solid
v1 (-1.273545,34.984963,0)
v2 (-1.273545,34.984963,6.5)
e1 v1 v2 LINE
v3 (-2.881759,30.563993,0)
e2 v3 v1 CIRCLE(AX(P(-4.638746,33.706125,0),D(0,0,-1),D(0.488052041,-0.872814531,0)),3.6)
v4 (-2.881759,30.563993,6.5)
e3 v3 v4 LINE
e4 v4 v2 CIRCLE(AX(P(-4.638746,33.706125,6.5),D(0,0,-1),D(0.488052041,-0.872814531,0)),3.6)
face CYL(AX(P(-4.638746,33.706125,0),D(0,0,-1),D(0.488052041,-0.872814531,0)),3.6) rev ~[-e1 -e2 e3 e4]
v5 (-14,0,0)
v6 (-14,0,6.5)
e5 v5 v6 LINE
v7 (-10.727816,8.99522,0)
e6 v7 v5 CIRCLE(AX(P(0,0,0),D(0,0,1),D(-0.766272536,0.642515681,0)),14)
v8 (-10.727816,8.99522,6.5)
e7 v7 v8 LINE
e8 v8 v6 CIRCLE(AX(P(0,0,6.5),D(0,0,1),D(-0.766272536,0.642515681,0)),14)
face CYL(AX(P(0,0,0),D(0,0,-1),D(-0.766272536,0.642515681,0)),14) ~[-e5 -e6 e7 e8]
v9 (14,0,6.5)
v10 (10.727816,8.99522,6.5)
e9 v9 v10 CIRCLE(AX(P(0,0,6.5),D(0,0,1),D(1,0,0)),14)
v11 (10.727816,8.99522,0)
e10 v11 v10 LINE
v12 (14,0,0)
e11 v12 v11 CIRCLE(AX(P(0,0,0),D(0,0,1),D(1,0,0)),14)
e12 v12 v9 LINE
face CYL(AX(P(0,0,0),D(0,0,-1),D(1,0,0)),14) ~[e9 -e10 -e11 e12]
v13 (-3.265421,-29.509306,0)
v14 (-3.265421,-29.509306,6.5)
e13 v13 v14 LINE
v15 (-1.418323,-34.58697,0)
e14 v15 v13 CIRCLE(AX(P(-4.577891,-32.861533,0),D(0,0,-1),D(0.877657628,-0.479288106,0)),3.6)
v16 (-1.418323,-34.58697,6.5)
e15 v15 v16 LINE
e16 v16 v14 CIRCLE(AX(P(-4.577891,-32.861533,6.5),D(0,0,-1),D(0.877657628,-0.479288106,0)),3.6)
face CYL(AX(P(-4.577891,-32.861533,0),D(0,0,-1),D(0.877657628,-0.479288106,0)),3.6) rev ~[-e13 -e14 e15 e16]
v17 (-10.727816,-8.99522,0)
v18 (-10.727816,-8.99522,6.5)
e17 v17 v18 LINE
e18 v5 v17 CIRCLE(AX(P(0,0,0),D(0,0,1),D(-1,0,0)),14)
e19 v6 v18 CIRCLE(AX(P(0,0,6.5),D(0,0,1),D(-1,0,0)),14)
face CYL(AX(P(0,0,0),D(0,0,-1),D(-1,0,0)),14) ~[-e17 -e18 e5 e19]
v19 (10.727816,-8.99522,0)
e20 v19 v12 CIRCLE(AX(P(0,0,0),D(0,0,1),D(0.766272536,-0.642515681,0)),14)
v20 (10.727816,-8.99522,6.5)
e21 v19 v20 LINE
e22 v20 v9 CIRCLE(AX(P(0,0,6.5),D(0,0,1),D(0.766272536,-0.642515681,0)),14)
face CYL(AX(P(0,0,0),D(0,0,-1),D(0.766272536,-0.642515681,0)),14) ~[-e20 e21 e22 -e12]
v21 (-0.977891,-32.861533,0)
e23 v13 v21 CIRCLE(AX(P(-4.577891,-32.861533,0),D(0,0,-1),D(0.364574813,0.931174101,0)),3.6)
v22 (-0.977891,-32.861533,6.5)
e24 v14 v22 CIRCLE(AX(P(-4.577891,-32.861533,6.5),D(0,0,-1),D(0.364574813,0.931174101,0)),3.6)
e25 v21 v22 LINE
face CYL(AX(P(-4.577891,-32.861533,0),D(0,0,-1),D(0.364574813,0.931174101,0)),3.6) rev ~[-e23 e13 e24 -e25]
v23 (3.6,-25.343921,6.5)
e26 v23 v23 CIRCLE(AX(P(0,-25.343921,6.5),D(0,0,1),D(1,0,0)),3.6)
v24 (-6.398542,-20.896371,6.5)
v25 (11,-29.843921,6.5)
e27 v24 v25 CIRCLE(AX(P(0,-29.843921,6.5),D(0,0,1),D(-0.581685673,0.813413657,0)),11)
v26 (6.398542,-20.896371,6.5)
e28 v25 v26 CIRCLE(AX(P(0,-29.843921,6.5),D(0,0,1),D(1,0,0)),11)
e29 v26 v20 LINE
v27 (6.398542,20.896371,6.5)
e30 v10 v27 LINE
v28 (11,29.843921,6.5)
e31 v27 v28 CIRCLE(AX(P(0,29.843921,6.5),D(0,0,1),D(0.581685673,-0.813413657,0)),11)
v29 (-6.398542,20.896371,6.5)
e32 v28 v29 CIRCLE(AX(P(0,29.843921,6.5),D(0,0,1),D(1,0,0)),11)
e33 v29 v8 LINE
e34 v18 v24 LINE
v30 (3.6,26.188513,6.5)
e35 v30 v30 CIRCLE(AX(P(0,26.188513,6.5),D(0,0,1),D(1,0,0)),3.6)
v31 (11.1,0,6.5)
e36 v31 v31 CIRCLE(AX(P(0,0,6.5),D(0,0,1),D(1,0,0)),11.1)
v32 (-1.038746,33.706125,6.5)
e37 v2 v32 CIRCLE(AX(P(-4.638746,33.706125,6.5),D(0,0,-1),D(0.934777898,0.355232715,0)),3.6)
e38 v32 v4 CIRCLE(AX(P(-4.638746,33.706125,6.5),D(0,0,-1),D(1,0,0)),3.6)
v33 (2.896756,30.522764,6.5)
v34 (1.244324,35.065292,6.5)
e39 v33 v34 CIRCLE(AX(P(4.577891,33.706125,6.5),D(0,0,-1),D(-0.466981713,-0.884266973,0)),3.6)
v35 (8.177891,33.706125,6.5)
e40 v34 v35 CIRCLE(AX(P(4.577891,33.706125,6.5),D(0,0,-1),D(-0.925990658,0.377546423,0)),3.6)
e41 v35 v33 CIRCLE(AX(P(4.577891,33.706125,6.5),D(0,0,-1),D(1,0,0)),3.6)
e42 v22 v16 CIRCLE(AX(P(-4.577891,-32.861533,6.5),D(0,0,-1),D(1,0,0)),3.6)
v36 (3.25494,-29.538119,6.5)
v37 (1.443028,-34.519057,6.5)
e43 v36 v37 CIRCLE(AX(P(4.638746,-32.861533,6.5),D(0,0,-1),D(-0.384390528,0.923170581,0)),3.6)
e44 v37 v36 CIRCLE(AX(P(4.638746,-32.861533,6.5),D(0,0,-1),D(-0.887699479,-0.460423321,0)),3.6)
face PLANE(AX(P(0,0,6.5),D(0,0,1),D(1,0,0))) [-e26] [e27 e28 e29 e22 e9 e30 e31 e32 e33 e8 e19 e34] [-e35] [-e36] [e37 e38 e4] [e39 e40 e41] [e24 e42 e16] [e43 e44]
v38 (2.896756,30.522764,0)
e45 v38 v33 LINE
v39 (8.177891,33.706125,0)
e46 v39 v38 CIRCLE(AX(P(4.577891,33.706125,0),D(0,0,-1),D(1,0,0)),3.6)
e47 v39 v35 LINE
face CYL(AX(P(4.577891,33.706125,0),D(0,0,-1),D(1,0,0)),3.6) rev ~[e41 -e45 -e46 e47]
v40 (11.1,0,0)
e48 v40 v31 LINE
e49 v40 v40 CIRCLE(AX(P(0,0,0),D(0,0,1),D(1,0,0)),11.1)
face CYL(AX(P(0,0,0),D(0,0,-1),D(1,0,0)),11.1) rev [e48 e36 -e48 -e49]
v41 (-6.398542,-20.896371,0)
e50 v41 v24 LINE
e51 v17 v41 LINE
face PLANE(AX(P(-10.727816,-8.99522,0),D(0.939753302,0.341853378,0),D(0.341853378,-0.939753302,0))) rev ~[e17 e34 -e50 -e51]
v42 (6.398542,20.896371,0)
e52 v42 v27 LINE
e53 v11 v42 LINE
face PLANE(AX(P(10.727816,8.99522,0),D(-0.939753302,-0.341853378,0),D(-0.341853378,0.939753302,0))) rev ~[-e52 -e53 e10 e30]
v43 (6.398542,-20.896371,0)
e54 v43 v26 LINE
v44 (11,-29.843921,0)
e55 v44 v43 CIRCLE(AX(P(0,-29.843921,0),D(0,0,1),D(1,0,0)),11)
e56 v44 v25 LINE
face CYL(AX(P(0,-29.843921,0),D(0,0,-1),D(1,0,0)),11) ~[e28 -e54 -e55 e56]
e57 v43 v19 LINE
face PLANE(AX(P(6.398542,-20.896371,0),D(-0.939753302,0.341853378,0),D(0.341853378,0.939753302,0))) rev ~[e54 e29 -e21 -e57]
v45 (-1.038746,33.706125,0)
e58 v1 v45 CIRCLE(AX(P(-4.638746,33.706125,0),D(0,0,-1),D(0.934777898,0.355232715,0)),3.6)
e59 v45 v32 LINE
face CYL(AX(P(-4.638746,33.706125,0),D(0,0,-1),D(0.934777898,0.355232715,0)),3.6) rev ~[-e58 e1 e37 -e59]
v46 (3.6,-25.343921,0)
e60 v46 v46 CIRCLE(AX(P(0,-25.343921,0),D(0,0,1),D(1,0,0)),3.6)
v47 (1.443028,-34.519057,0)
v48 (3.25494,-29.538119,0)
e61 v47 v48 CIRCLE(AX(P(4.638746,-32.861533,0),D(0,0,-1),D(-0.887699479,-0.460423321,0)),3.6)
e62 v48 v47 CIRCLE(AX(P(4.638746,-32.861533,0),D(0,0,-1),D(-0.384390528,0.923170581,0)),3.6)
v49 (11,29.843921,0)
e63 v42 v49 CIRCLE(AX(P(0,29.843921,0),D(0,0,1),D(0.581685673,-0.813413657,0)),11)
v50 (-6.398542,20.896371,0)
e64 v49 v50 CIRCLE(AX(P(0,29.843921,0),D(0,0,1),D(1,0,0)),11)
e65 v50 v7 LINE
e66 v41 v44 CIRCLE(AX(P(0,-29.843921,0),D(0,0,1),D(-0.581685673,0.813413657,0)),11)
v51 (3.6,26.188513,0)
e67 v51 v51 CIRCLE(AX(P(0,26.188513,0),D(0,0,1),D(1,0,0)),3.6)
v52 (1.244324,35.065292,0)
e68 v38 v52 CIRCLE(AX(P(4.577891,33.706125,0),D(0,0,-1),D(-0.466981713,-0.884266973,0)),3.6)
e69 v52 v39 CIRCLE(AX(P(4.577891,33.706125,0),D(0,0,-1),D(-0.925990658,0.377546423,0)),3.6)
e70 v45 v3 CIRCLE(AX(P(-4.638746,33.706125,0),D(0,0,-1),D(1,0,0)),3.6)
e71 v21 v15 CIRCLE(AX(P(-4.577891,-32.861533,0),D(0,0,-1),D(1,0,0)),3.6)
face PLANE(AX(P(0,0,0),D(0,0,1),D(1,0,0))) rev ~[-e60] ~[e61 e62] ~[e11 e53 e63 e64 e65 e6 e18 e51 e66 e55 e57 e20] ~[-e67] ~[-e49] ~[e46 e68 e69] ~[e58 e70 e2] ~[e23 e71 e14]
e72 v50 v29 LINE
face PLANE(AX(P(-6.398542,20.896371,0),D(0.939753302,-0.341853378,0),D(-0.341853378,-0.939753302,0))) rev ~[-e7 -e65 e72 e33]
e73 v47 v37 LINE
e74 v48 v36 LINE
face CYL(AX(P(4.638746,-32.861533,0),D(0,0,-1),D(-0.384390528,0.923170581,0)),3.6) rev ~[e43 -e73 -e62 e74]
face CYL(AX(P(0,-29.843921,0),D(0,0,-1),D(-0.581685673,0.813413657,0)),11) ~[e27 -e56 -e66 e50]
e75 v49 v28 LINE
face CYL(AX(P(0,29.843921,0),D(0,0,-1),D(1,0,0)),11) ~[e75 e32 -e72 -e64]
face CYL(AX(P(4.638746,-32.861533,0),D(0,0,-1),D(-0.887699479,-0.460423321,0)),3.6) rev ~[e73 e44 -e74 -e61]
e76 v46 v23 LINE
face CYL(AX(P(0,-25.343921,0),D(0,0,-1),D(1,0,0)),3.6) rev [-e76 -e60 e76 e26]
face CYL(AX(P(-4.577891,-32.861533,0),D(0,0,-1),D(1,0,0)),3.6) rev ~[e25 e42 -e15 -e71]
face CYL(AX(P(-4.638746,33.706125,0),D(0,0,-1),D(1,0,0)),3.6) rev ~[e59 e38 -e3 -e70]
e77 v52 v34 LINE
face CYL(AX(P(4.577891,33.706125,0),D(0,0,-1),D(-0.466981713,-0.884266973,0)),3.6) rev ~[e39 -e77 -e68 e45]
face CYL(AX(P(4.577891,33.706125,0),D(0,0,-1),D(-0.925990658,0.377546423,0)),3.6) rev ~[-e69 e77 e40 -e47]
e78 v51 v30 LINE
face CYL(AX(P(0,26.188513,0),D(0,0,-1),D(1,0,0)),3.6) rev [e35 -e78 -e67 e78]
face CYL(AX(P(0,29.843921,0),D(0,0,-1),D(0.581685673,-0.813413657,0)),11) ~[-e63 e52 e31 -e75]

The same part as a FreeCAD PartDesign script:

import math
import FreeCAD as App
import Part
import Sketcher
Q = App.Units.Quantity

doc = App.newDocument("Part")
params = doc.addObject("Spreadsheet::Sheet", "Params")
for row, (alias, value) in enumerate([
    ("sketch1_radius", "14 mm"),
    ("sketch1_radius2", "11 mm"),
    ("sketch1_diameter", "22.2 mm"),
    ("sketch1_diameter2", "7.2 mm"),
    ("pad1_length", "6.5 mm"),
], start=1):
    params.set(f"A{row}", alias)
    params.set(f"B{row}", "=" + value)
    params.setAlias(f"B{row}", alias)

body = doc.addObject("PartDesign::Body", "Body")

# Sketch on XY plane
sketch1 = body.newObject("Sketcher::SketchObject", "Sketch")
sketch1.AttachmentSupport = (doc.getObject("XY_Plane"), [""])
sketch1.MapMode = "FlatFace"
sketch1.addGeometry([
    Part.ArcOfCircle(Part.Circle(App.Vector(0, 0, 0), App.Vector(0, 0, 1), 14), math.radians(140), math.radians(180)),  # 0
    Part.ArcOfCircle(Part.Circle(App.Vector(0, 0, 0), App.Vector(0, 0, 1), 14), math.radians(180), math.radians(220)),  # 1
    Part.LineSegment(App.Vector(-10.7, -9, 0), App.Vector(-6.4, -20.9, 0)),  # 2
    Part.ArcOfCircle(Part.Circle(App.Vector(0, -29.8, 0), App.Vector(0, 0, 1), 11), math.radians(126), math.radians(360)),  # 3
    Part.ArcOfCircle(Part.Circle(App.Vector(0, -29.8, 0), App.Vector(0, 0, 1), 11), math.radians(0), math.radians(54)),  # 4
    Part.LineSegment(App.Vector(6.4, -20.9, 0), App.Vector(10.7, -9, 0)),  # 5
    Part.ArcOfCircle(Part.Circle(App.Vector(0, 0, 0), App.Vector(0, 0, 1), 14), math.radians(-40), math.radians(0)),  # 6
    Part.ArcOfCircle(Part.Circle(App.Vector(0, 0, 0), App.Vector(0, 0, 1), 14), math.radians(0), math.radians(40)),  # 7
    Part.LineSegment(App.Vector(10.7, 9, 0), App.Vector(6.4, 20.9, 0)),  # 8
    Part.ArcOfCircle(Part.Circle(App.Vector(0, 29.8, 0), App.Vector(0, 0, 1), 11), math.radians(-54), math.radians(0)),  # 9
    Part.ArcOfCircle(Part.Circle(App.Vector(0, 29.8, 0), App.Vector(0, 0, 1), 11), math.radians(0), math.radians(234)),  # 10
    Part.LineSegment(App.Vector(-6.4, 20.9, 0), App.Vector(-10.7, 9, 0)),  # 11
    Part.ArcOfCircle(Part.Circle(App.Vector(-4.6, -32.9, 0), App.Vector(0, 0, 1), 3.6), math.radians(0), math.radians(69)),  # 12
    Part.ArcOfCircle(Part.Circle(App.Vector(-4.6, -32.9, 0), App.Vector(0, 0, 1), 3.6), math.radians(-29), math.radians(0)),  # 13
    Part.ArcOfCircle(Part.Circle(App.Vector(-4.6, -32.9, 0), App.Vector(0, 0, 1), 3.6), math.radians(69), math.radians(331)),  # 14
    Part.ArcOfCircle(Part.Circle(App.Vector(4.6, -32.9, 0), App.Vector(0, 0, 1), 3.6), math.radians(113), math.radians(207)),  # 15
    Part.ArcOfCircle(Part.Circle(App.Vector(4.6, -32.9, 0), App.Vector(0, 0, 1), 3.6), math.radians(-153), math.radians(113)),  # 16
    Part.Circle(App.Vector(0, 0, 0), App.Vector(0, 0, 1), 11.1),  # 17
    Part.Circle(App.Vector(0, 26.2, 0), App.Vector(0, 0, 1), 3.6),  # 18
    Part.ArcOfCircle(Part.Circle(App.Vector(-4.6, 33.7, 0), App.Vector(0, 0, 1), 3.6), math.radians(-61), math.radians(0)),  # 19
    Part.ArcOfCircle(Part.Circle(App.Vector(-4.6, 33.7, 0), App.Vector(0, 0, 1), 3.6), math.radians(21), math.radians(299)),  # 20
    Part.ArcOfCircle(Part.Circle(App.Vector(-4.6, 33.7, 0), App.Vector(0, 0, 1), 3.6), math.radians(0), math.radians(21)),  # 21
    Part.ArcOfCircle(Part.Circle(App.Vector(4.6, 33.7, 0), App.Vector(0, 0, 1), 3.6), math.radians(158), math.radians(242)),  # 22
    Part.ArcOfCircle(Part.Circle(App.Vector(4.6, 33.7, 0), App.Vector(0, 0, 1), 3.6), math.radians(0), math.radians(158)),  # 23
    Part.ArcOfCircle(Part.Circle(App.Vector(4.6, 33.7, 0), App.Vector(0, 0, 1), 3.6), math.radians(-118), math.radians(0)),  # 24
    Part.Circle(App.Vector(0, -25.3, 0), App.Vector(0, 0, 1), 3.6),  # 25
], False)
sketch1.addConstraint([
    Sketcher.Constraint("Tangent", 0, 2, 1, 1),
    Sketcher.Constraint("Coincident", 1, 2, 2, 1),
    Sketcher.Constraint("Coincident", 2, 2, 3, 1),
    Sketcher.Constraint("Tangent", 3, 2, 4, 1),
    Sketcher.Constraint("Coincident", 4, 2, 5, 1),
    Sketcher.Constraint("Coincident", 5, 2, 6, 1),
    Sketcher.Constraint("Tangent", 6, 2, 7, 1),
    Sketcher.Constraint("Coincident", 7, 2, 8, 1),
    Sketcher.Constraint("Coincident", 8, 2, 9, 1),
    Sketcher.Constraint("Tangent", 9, 2, 10, 1),
    Sketcher.Constraint("Coincident", 10, 2, 11, 1),
    Sketcher.Constraint("Coincident", 11, 2, 0, 1),
    Sketcher.Constraint("Tangent", 12, 1, 13, 2),
    Sketcher.Constraint("Tangent", 13, 1, 14, 2),
    Sketcher.Constraint("Tangent", 14, 1, 12, 2),
    Sketcher.Constraint("Tangent", 15, 1, 16, 2),
    Sketcher.Constraint("Coincident", 16, 1, 15, 2),
    Sketcher.Constraint("Tangent", 19, 1, 20, 2),
    Sketcher.Constraint("Tangent", 20, 1, 21, 2),
    Sketcher.Constraint("Tangent", 21, 1, 19, 2),
    Sketcher.Constraint("Tangent", 22, 1, 23, 2),
    Sketcher.Constraint("Tangent", 23, 1, 24, 2),
    Sketcher.Constraint("Tangent", 24, 1, 22, 2),
    Sketcher.Constraint("Coincident", 0, 3, -1, 1),
    Sketcher.Constraint("Coincident", 6, 3, -1, 1),
    Sketcher.Constraint("Coincident", 17, 3, -1, 1),
    Sketcher.Constraint("Equal", 0, 1),
    Sketcher.Constraint("Equal", 3, 4),
    Sketcher.Constraint("Equal", 1, 6),
    Sketcher.Constraint("Equal", 6, 7),
    Sketcher.Constraint("Equal", 4, 9),
    Sketcher.Constraint("Equal", 9, 10),
    Sketcher.Constraint("Equal", 14, 15),
    Sketcher.Constraint("Equal", 16, 18),
    Sketcher.Constraint("Equal", 18, 19),
    Sketcher.Constraint("Equal", 21, 22),
    Sketcher.Constraint("Equal", 24, 25),
    Sketcher.Constraint("Symmetric", 3, 3, 9, 3, -1, 1),
    Sketcher.Constraint("Symmetric", 2, 2, 4, 2, -2),
    Sketcher.Constraint("PointOnObject", 18, 3, -2),
    Sketcher.Constraint("PointOnObject", 25, 3, -2),
    Sketcher.Constraint("PointOnObject", 0, 2, -1),
    Sketcher.Constraint("PointOnObject", 6, 2, -1),
    Sketcher.Constraint("Parallel", 2, 8),
    Sketcher.Constraint("Parallel", 5, 11),
    Sketcher.Constraint("Horizontal", 14, 3, 15, 3),
    Sketcher.Constraint("Horizontal", 21, 3, 22, 3),
    Sketcher.Constraint("Horizontal", 4, 3, 3, 2),
    Sketcher.Constraint("Horizontal", 1, 2, 5, 2),
    Sketcher.Constraint("Horizontal", 10, 3, 9, 2),
    Sketcher.Constraint("Horizontal", 8, 2, 10, 2),
    Sketcher.Constraint("Horizontal", 16, 3, 12, 1),
    Sketcher.Constraint("Horizontal", 24, 3, 21, 1),
    Sketcher.Constraint("Horizontal", 21, 1, 23, 1),
    Sketcher.Constraint("Vertical", 5, 2, 7, 2),
    Sketcher.Constraint("Radius", 0, Q("14 mm")),
    Sketcher.Constraint("Radius", 3, Q("11 mm")),
    Sketcher.Constraint("Diameter", 17, Q("22.2 mm")),
    Sketcher.Constraint("Diameter", 18, Q("7.2 mm")),
    Sketcher.Constraint("DistanceY", 3, 3, 25, 3, Q("4.5 mm")),
    Sketcher.Constraint("DistanceX", 19, 3, 20, 1, Q("3.3652 mm")),
    Sketcher.Constraint("DistanceY", 3, 3, -1, 1, Q("29.843921 mm")),
    Sketcher.Constraint("DistanceX", 12, 3, -1, 1, Q("4.577891 mm")),
    Sketcher.Constraint("DistanceX", -1, 1, 22, 3, Q("4.577891 mm")),
    Sketcher.Constraint("DistanceY", 1, 2, -1, 1, Q("8.99522 mm")),
    Sketcher.Constraint("DistanceY", 2, 2, -1, 1, Q("20.896371 mm")),
    Sketcher.Constraint("DistanceY", 13, 1, -1, 1, Q("34.58697 mm")),
    Sketcher.Constraint("DistanceX", 14, 1, -1, 1, Q("3.265421 mm")),
    Sketcher.Constraint("DistanceX", -1, 1, 15, 1, Q("3.25494 mm")),
    Sketcher.Constraint("DistanceY", 15, 1, -1, 1, Q("29.538119 mm")),
    Sketcher.Constraint("DistanceX", 19, 1, -1, 1, Q("2.881759 mm")),
    Sketcher.Constraint("DistanceY", -1, 1, 22, 1, Q("35.065292 mm")),
    Sketcher.Constraint("DistanceY", 12, 3, 3, 3, Q("3.017612 mm")),
    Sketcher.Constraint("DistanceY", 18, 3, 19, 3, Q("7.517612 mm")),
    Sketcher.Constraint("DistanceX", 13, 1, 16, 1, Q("2.861351 mm")),
    Sketcher.Constraint("DistanceY", 9, 3, 19, 1, Q("0.720072 mm")),
    Sketcher.Constraint("DistanceY", 19, 1, 20, 1, Q("4.42097 mm")),
    Sketcher.Constraint("DistanceY", 24, 1, 22, 3, Q("3.183361 mm")),
])
sketch1.setExpression("Constraints[55]", "Params.sketch1_radius")
sketch1.setExpression("Constraints[56]", "Params.sketch1_radius2")
sketch1.setExpression("Constraints[57]", "Params.sketch1_diameter")
sketch1.setExpression("Constraints[58]", "Params.sketch1_diameter2")
pad1 = body.newObject("PartDesign::Pad", "Pad")
pad1.Profile = sketch1
pad1.setExpression("Length", "Params.pad1_length")

doc.recompute()
